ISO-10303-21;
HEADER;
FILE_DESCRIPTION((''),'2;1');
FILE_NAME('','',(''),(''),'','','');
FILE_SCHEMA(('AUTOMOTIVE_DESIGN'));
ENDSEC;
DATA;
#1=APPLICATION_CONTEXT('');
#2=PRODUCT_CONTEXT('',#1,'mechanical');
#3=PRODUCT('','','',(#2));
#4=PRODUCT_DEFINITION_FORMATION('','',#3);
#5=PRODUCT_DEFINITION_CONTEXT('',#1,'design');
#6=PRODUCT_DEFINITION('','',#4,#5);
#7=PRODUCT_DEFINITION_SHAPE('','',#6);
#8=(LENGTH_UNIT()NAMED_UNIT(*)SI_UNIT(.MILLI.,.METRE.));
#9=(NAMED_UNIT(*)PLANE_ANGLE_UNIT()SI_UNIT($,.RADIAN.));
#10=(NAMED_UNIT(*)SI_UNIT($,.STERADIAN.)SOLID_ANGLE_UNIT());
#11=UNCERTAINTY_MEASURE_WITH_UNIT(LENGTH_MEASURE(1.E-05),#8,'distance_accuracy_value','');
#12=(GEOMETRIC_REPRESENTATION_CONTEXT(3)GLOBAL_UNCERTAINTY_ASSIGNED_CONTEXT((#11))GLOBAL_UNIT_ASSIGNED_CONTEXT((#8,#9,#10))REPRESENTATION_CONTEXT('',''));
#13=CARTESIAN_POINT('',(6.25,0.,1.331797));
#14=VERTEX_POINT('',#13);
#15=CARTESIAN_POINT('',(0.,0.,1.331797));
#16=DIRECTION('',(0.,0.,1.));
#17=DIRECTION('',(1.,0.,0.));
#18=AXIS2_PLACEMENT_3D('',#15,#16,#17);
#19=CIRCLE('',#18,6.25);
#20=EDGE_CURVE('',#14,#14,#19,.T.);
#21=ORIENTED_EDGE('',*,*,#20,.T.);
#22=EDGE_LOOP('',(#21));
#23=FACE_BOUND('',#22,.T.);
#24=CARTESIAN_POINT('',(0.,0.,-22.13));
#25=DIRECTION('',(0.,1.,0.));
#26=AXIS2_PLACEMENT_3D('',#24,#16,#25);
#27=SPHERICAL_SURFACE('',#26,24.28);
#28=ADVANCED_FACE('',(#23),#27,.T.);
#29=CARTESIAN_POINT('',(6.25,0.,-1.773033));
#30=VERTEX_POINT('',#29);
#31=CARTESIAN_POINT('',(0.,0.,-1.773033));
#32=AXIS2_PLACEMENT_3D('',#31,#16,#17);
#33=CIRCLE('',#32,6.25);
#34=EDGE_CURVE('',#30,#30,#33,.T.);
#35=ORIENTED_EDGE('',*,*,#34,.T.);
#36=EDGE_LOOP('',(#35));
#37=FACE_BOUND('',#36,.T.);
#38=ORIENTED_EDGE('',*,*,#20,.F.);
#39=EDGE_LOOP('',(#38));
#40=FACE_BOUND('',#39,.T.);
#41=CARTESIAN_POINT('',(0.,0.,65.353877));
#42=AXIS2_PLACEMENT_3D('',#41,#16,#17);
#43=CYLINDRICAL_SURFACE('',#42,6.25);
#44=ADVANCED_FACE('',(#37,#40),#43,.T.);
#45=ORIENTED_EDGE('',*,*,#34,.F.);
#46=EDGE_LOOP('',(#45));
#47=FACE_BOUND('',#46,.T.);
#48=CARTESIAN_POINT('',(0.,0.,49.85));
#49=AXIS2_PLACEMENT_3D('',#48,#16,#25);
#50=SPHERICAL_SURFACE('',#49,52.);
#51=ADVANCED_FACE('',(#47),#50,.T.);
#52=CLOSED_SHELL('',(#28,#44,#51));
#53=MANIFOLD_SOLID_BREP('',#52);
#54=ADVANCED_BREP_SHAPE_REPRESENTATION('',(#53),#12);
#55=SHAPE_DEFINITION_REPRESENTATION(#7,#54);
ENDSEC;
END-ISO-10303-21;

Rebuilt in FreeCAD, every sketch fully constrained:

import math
import FreeCAD as App
import Part
import Sketcher

doc = App.newDocument("Part")
body = doc.addObject("PartDesign::Body", "Body")

sketch1 = body.newObject("Sketcher::SketchObject", "Sketch")
sketch1.AttachmentSupport = (doc.getObject("YZ_Plane"), [""])
sketch1.MapMode = "FlatFace"
sketch1.addGeometry([
    Part.LineSegment(App.Vector(6.2, -1.8, 0), App.Vector(6.2, 1.3, 0)),
    Part.ArcOfCircle(Part.Circle(App.Vector(0, -22.1, 0), App.Vector(0, 0, 1), 24.3), math.radians(75.08), math.radians(90)),
    Part.LineSegment(App.Vector(0, 2.1, 0), App.Vector(0, -2.1, 0)),
    Part.ArcOfCircle(Part.Circle(App.Vector(0, 49.9, 0), App.Vector(0, 0, 1), 52), math.radians(-90), math.radians(-83.1)),
], False)
sketch1.addConstraint([
    Sketcher.Constraint("Coincident", 0, 2, 1, 1),
    Sketcher.Constraint("Coincident", 1, 2, 2, 1),
    Sketcher.Constraint("Coincident", 2, 2, 3, 1),
    Sketcher.Constraint("Coincident", 3, 2, 0, 1),
    Sketcher.Constraint("Vertical", 0),
    Sketcher.Constraint("Vertical", 2),
    Sketcher.Constraint("Symmetric", 1, 2, 2, 2, -1, 1),
    Sketcher.Constraint("PointOnObject", 1, 3, -2),
    Sketcher.Constraint("PointOnObject", 3, 3, -2),
    Sketcher.Constraint("Radius", 3, 52.0),
    Sketcher.Constraint("Radius", 1, 24.28),
    Sketcher.Constraint("DistanceY", 2, 2, 2, 1, 4.3),
    Sketcher.Constraint("DistanceX", -1, 1, 0, 2, 6.25),
])
revolution = body.newObject("PartDesign::Revolution", "Revolution")
revolution.Profile = sketch1
revolution.ReferenceAxis = (sketch1, ["V_Axis"])
revolution.Angle = 360

doc.recompute()
